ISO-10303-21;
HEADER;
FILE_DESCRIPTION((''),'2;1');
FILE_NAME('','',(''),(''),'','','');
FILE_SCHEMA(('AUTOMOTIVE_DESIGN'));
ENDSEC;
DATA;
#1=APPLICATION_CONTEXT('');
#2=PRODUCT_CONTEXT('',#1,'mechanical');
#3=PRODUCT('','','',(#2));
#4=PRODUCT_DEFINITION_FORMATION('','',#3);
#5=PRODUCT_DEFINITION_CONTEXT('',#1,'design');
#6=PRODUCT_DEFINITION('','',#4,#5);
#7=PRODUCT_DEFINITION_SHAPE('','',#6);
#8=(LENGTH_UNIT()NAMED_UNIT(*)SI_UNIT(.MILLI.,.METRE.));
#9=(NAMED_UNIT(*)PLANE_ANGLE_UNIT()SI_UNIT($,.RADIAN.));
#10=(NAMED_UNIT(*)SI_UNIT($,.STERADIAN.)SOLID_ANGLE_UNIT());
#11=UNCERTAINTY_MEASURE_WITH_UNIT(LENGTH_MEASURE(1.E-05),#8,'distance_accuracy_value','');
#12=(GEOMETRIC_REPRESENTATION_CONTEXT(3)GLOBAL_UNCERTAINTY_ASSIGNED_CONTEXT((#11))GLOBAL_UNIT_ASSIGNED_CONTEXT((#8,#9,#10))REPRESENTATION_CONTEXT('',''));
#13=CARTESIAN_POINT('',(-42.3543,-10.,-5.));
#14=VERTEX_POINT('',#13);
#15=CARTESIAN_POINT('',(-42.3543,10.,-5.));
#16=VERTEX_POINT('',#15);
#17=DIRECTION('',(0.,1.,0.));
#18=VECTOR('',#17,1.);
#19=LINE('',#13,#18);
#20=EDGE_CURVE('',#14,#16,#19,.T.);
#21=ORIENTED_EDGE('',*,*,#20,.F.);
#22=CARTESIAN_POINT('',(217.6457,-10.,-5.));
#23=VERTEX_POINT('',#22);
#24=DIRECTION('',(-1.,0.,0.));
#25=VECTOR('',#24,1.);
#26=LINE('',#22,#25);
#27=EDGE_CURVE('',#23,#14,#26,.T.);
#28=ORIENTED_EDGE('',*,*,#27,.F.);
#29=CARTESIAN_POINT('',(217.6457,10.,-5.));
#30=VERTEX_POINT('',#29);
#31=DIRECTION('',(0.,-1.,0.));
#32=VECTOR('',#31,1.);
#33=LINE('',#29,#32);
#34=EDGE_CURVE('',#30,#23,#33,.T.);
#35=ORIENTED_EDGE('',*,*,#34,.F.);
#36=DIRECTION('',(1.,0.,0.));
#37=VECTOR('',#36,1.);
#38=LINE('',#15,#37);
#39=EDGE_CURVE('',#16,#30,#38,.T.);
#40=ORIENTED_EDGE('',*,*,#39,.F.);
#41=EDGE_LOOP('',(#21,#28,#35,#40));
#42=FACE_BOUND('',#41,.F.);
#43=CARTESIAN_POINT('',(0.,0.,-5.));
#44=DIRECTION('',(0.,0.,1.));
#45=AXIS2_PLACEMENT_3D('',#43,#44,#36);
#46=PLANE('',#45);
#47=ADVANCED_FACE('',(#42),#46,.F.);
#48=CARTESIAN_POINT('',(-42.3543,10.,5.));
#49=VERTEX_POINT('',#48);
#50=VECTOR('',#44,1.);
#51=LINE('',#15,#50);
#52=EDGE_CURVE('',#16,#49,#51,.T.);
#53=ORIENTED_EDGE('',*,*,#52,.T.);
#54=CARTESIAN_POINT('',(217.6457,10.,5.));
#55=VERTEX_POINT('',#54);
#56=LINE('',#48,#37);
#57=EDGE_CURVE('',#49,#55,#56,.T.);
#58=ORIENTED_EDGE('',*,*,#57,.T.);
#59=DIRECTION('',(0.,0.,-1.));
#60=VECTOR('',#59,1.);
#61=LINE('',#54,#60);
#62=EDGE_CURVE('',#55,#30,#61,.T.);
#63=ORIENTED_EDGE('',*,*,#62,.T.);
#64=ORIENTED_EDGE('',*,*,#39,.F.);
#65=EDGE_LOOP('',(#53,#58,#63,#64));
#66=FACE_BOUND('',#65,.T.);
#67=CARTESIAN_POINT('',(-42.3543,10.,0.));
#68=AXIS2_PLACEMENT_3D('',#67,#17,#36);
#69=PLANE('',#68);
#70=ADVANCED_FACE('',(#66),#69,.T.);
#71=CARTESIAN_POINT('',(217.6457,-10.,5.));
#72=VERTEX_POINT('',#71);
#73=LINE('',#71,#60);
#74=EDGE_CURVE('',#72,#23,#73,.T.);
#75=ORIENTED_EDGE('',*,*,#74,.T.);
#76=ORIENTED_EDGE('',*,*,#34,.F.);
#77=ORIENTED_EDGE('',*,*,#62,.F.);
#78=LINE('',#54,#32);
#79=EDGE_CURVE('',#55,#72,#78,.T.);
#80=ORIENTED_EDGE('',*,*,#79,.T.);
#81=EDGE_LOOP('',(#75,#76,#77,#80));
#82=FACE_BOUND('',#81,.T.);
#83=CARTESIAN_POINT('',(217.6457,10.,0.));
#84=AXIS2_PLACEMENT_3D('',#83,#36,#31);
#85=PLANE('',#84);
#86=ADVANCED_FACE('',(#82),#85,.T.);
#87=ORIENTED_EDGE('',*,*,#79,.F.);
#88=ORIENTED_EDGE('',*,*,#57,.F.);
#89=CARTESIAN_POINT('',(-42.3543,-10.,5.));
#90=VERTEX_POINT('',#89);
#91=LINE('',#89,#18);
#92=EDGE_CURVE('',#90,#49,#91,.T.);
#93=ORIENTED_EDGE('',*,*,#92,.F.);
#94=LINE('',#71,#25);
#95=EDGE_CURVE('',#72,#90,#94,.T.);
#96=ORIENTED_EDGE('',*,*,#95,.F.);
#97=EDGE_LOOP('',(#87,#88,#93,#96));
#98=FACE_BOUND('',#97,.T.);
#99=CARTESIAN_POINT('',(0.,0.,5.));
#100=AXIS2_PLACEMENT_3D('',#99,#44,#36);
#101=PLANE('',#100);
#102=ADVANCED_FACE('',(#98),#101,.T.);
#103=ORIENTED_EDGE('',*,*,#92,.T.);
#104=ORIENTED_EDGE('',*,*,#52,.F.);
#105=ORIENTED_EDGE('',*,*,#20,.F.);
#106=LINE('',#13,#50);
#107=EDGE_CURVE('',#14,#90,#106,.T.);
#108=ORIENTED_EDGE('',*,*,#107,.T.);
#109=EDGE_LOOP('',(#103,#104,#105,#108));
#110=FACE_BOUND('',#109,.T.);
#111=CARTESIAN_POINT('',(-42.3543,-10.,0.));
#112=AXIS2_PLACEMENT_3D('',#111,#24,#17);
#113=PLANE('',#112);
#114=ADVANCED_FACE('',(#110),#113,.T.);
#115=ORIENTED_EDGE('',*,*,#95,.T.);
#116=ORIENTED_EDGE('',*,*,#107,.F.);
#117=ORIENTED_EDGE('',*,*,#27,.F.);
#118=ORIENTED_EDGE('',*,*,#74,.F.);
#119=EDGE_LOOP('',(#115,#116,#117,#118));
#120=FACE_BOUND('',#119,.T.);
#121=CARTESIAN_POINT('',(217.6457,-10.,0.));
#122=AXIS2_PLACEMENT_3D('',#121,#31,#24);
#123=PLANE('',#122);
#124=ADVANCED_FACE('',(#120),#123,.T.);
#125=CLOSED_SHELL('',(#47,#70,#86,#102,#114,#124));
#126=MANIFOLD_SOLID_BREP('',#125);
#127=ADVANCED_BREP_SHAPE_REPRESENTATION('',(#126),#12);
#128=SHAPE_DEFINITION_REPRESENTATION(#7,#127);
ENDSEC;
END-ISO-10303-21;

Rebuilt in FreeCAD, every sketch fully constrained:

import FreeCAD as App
import Part
import Sketcher
from FreeCAD import Vector
Q = App.Units.Quantity


def add_polygon(sketch, points):
    """Adds a closed chain of lines whose ends are joined by coincident constraints."""
    first, n = sketch.GeometryCount, len(points)
    for a, b in zip(points, points[1:] + points[:1]):
        sketch.addGeometry(Part.LineSegment(App.Vector(*a, 0), App.Vector(*b, 0)), False)
    for i in range(n):
        sketch.addConstraint(Sketcher.Constraint("Coincident", first + i, 2, first + (i + 1) % n, 1))

doc = App.newDocument("Part")
body = doc.addObject("PartDesign::Body", "Body")

# Sketch on XY plane
sketch1 = body.newObject("Sketcher::SketchObject", "Sketch")
sketch1.AttachmentSupport = (doc.getObject("XY_Plane"), [""])
sketch1.MapMode = "FlatFace"
add_polygon(sketch1, [(218, 10), (-42, 10), (-42, -10), (218, -10)])  # lines 0-3
sketch1.addConstraint(Sketcher.Constraint("Horizontal", 0))
sketch1.addConstraint(Sketcher.Constraint("Vertical", 1))
sketch1.addConstraint(Sketcher.Constraint("Horizontal", 2))
sketch1.addConstraint(Sketcher.Constraint("Vertical", 3))
sketch1.addConstraint(Sketcher.Constraint("DistanceX", 0, 2, 0, 1, Q("260 mm")))
sketch1.addConstraint(Sketcher.Constraint("DistanceY", 1, 2, 1, 1, Q("20 mm")))
sketch1.addConstraint(Sketcher.Constraint("DistanceY", -1, 1, 0, 2, Q("10 mm")))
sketch1.addConstraint(Sketcher.Constraint("DistanceX", -1, 1, 2, 2, Q("217.6457 mm")))
pad1 = body.newObject("PartDesign::Pad", "Pad")
pad1.Profile = sketch1
pad1.Length = 10
pad1.Midplane = True

doc.recompute()
